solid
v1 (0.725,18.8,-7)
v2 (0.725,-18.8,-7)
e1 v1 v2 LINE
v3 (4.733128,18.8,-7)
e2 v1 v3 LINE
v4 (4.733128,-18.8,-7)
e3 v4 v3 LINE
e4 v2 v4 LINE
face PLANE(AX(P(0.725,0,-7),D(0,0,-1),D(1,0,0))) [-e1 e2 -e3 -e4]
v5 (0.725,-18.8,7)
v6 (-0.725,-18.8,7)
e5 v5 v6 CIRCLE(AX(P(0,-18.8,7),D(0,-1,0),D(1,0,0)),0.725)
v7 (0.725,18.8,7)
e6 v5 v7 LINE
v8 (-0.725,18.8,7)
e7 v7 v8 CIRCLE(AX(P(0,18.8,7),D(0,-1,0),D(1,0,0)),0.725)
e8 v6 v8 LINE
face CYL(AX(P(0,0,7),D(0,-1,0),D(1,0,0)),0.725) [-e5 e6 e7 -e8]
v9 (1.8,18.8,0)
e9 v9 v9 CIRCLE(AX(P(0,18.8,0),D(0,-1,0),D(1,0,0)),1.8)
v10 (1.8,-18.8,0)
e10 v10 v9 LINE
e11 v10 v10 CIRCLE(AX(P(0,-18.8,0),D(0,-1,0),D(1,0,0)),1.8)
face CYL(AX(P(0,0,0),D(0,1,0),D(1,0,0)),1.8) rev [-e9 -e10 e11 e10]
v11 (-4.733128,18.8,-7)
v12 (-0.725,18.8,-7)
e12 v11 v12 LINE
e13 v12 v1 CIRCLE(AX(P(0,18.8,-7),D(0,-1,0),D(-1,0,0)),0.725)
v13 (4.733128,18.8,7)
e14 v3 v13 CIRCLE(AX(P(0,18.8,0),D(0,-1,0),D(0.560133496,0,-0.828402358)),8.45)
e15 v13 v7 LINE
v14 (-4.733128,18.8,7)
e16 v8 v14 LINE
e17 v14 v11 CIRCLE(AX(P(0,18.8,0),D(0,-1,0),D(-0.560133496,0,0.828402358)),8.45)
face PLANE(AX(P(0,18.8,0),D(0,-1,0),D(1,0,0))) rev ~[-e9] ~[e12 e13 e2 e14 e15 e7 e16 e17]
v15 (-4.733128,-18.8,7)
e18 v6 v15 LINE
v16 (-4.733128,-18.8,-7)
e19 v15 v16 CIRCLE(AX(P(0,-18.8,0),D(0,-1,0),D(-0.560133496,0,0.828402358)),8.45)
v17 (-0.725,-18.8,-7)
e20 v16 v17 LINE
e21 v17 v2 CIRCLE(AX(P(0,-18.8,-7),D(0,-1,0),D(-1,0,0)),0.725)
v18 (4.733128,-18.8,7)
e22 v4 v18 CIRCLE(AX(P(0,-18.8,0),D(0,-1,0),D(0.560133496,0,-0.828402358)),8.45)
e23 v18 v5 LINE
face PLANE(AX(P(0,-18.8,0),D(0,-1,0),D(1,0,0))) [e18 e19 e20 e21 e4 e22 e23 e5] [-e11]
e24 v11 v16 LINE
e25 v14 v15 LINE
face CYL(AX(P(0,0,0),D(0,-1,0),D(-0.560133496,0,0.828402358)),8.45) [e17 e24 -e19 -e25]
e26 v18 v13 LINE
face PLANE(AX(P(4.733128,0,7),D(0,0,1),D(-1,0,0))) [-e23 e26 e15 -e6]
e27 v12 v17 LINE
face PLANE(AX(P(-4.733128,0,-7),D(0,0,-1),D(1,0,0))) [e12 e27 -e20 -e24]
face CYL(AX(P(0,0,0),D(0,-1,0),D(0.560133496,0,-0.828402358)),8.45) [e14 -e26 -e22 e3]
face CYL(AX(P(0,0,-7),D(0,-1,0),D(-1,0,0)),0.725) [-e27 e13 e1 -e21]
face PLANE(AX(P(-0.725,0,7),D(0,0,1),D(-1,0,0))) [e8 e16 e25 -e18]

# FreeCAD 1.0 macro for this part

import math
import FreeCAD as App
import Part
import Sketcher

doc = App.newDocument("Part")
body = doc.addObject("PartDesign::Body", "Body")

# Sketch on XZ plane
sketch1 = body.newObject("Sketcher::SketchObject", "Sketch")
sketch1.AttachmentSupport = (doc.getObject("XZ_Plane"), [""])
sketch1.MapMode = "FlatFace"
sketch1.addGeometry(Part.LineSegment(App.Vector(-0.725, 7, 0), App.Vector(-4.733128, 7, 0)), False)
sketch1.addGeometry(Part.ArcOfCircle(Part.Circle(App.Vector(0, 0, 0), App.Vector(0, 0, 1), 8.45), math.radians(124.06503), math.radians(235.93497)), False)
sketch1.addGeometry(Part.LineSegment(App.Vector(-4.733128, -7, 0), App.Vector(-0.725, -7, 0)), False)
sketch1.addGeometry(Part.ArcOfCircle(Part.Circle(App.Vector(0, -7, 0), App.Vector(0, 0, 1), 0.725), math.radians(180), math.radians(360)), False)
sketch1.addGeometry(Part.LineSegment(App.Vector(0.725, -7, 0), App.Vector(4.733128, -7, 0)), False)
sketch1.addGeometry(Part.ArcOfCircle(Part.Circle(App.Vector(0, 0, 0), App.Vector(0, 0, 1), 8.45), math.radians(-55.93497), math.radians(55.93497)), False)
sketch1.addGeometry(Part.LineSegment(App.Vector(4.733128, 7, 0), App.Vector(0.725, 7, 0)), False)
sketch1.addGeometry(Part.ArcOfCircle(Part.Circle(App.Vector(0, 7, 0), App.Vector(0, 0, 1), 0.725), math.radians(0), math.radians(180)), False)
sketch1.addGeometry(Part.Circle(App.Vector(0, 0, 0), App.Vector(0, 0, 1), 1.8), False)
sketch1.addConstraint(Sketcher.Constraint("Coincident", 0, 2, 1, 1))
sketch1.addConstraint(Sketcher.Constraint("Coincident", 1, 2, 2, 1))
sketch1.addConstraint(Sketcher.Constraint("Coincident", 2, 2, 3, 1))
sketch1.addConstraint(Sketcher.Constraint("Coincident", 3, 2, 4, 1))
sketch1.addConstraint(Sketcher.Constraint("Coincident", 4, 2, 5, 1))
sketch1.addConstraint(Sketcher.Constraint("Coincident", 5, 2, 6, 1))
sketch1.addConstraint(Sketcher.Constraint("Coincident", 6, 2, 7, 1))
sketch1.addConstraint(Sketcher.Constraint("Coincident", 7, 2, 0, 1))
sketch1.addConstraint(Sketcher.Constraint("Horizontal", 0))
sketch1.addConstraint(Sketcher.Constraint("Horizontal", 2))
sketch1.addConstraint(Sketcher.Constraint("Horizontal", 4))
sketch1.addConstraint(Sketcher.Constraint("Horizontal", 6))
sketch1.addConstraint(Sketcher.Constraint("Coincident", 1, 3, -1, 1))
sketch1.addConstraint(Sketcher.Constraint("Coincident", 5, 3, -1, 1))
sketch1.addConstraint(Sketcher.Constraint("Coincident", 8, 3, -1, 1))
sketch1.addConstraint(Sketcher.Constraint("Equal", 1, 5))
sketch1.addConstraint(Sketcher.Constraint("Equal", 3, 7))
sketch1.addConstraint(Sketcher.Constraint("Symmetric", 3, 3, 7, 3, -1, 1))
sketch1.addConstraint(Sketcher.Constraint("Symmetric", 2, 2, 3, 2, -2))
sketch1.addConstraint(Sketcher.Constraint("Horizontal", 7, 3, 0, 2))
sketch1.addConstraint(Sketcher.Constraint("Horizontal", 3, 3, 1, 2))
sketch1.addConstraint(Sketcher.Constraint("Horizontal", 0, 2, 5, 2))
sketch1.addConstraint(Sketcher.Constraint("Diameter", 8, 3.6))
sketch1.addConstraint(Sketcher.Constraint("Radius", 1, 8.45))
sketch1.addConstraint(Sketcher.Constraint("DistanceY", 3, 3, -1, 1, 7.0))
sketch1.addConstraint(Sketcher.Constraint("Radius", 3, 0.725))
pad1 = body.newObject("PartDesign::Pad", "Pad")
pad1.Profile = sketch1
pad1.Length = 37.6
pad1.Midplane = True

doc.recompute()
